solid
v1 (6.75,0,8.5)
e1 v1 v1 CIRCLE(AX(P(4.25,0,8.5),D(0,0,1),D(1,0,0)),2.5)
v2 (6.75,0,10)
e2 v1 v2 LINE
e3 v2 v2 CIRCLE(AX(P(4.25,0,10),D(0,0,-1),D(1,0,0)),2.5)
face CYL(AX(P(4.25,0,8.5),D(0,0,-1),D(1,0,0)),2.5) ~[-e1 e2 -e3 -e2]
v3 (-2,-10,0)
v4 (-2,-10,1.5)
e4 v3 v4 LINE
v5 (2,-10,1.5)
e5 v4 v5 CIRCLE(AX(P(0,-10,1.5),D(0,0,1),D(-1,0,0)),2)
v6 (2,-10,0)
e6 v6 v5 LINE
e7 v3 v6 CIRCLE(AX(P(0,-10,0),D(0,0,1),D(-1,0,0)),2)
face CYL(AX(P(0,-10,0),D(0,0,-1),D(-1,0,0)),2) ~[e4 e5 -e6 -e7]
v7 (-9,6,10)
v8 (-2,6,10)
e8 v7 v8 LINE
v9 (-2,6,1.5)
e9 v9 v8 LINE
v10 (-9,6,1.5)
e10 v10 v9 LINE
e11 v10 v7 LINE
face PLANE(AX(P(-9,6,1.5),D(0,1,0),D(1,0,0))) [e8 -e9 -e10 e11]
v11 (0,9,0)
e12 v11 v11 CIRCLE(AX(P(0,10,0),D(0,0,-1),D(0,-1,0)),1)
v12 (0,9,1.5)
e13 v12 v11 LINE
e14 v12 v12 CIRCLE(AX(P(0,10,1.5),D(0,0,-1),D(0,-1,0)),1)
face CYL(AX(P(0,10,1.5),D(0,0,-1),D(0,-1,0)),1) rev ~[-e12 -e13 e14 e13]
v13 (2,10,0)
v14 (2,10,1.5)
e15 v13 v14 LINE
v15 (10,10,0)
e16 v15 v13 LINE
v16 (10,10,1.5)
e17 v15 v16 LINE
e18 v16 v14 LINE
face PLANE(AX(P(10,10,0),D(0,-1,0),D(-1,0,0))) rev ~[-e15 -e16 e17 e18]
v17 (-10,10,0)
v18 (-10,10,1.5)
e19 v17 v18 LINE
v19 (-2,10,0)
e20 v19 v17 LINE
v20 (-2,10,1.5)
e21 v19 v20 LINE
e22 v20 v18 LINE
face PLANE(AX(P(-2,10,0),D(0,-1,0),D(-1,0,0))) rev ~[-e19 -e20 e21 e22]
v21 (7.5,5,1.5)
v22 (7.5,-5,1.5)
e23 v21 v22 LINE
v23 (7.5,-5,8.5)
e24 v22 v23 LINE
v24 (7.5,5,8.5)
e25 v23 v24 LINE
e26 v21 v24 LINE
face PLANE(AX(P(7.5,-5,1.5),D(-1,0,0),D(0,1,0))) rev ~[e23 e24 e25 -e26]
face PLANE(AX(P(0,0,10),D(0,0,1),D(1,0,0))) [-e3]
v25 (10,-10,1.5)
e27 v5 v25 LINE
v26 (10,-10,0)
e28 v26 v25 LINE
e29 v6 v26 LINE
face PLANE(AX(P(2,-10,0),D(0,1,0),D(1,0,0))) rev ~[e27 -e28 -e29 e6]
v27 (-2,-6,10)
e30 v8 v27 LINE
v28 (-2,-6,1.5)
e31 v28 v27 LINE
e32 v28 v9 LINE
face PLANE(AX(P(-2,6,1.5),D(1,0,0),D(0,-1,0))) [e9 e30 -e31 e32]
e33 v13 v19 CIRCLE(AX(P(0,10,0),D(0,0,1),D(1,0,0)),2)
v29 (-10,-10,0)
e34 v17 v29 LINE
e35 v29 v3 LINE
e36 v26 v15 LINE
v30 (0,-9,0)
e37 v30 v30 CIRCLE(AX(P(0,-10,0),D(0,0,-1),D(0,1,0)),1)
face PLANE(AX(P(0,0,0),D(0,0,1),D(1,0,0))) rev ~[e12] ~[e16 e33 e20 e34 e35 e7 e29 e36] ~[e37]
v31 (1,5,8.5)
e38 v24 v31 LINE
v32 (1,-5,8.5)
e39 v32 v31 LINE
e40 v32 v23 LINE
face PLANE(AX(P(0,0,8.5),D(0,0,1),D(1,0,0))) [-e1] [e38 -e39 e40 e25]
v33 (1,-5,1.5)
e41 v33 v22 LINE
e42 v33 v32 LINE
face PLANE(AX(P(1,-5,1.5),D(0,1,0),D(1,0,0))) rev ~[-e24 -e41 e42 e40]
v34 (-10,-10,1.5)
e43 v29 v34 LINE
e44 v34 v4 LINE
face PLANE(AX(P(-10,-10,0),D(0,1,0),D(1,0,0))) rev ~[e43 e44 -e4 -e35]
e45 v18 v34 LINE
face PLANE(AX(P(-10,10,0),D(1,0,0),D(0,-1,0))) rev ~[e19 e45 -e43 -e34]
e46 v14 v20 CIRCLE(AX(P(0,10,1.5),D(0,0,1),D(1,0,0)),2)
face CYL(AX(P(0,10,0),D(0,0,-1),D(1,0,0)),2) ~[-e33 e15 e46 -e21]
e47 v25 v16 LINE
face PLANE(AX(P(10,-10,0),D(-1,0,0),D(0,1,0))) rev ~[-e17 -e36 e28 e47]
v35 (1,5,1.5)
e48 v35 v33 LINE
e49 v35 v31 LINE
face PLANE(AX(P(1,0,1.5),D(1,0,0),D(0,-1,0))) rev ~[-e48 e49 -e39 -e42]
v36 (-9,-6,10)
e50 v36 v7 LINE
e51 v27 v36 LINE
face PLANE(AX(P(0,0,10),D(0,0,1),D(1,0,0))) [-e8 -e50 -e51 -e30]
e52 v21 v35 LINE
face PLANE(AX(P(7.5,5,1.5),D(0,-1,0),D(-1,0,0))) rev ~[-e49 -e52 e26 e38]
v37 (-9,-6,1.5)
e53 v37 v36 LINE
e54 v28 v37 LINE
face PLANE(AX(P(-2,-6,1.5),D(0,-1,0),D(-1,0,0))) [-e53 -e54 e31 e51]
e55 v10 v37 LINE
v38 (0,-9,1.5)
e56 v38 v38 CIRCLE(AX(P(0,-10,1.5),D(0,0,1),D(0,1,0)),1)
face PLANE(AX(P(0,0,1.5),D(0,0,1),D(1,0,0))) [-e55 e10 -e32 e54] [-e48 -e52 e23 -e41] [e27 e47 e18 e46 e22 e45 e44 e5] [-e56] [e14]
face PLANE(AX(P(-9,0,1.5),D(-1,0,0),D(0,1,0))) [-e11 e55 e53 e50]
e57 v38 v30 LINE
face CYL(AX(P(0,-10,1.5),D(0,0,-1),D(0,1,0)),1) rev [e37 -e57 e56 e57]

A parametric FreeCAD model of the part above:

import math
import FreeCAD as App
import Part
import Sketcher


def add_polygon(sketch, points):
    """Adds a closed chain of lines whose ends are joined by coincident constraints."""
    first, n = sketch.GeometryCount, len(points)
    for a, b in zip(points, points[1:] + points[:1]):
        sketch.addGeometry(Part.LineSegment(App.Vector(*a, 0), App.Vector(*b, 0)), False)
    for i in range(n):
        sketch.addConstraint(Sketcher.Constraint("Coincident", first + i, 2, first + (i + 1) % n, 1))

doc = App.newDocument("Part")
body = doc.addObject("PartDesign::Body", "Body")

sketch1 = body.newObject("Sketcher::SketchObject", "Sketch")
sketch1.AttachmentSupport = (doc.getObject("XY_Plane"), [""])
sketch1.MapMode = "FlatFace"
sketch1.addGeometry(Part.LineSegment(App.Vector(-10, 10, 0), App.Vector(-10, -10, 0)), False)
sketch1.addGeometry(Part.LineSegment(App.Vector(-10, -10, 0), App.Vector(-2, -10, 0)), False)
sketch1.addGeometry(Part.ArcOfCircle(Part.Circle(App.Vector(0, -10, 0), App.Vector(0, 0, 1), 2), math.radians(180), math.radians(360)), False)
sketch1.addGeometry(Part.LineSegment(App.Vector(2, -10, 0), App.Vector(10, -10, 0)), False)
sketch1.addGeometry(Part.LineSegment(App.Vector(10, -10, 0), App.Vector(10, 10, 0)), False)
sketch1.addGeometry(Part.LineSegment(App.Vector(10, 10, 0), App.Vector(2, 10, 0)), False)
sketch1.addGeometry(Part.ArcOfCircle(Part.Circle(App.Vector(0, 10, 0), App.Vector(0, 0, 1), 2), math.radians(0), math.radians(180)), False)
sketch1.addGeometry(Part.LineSegment(App.Vector(-2, 10, 0), App.Vector(-10, 10, 0)), False)
sketch1.addConstraint(Sketcher.Constraint("Coincident", 0, 2, 1, 1))
sketch1.addConstraint(Sketcher.Constraint("Coincident", 1, 2, 2, 1))
sketch1.addConstraint(Sketcher.Constraint("Coincident", 2, 2, 3, 1))
sketch1.addConstraint(Sketcher.Constraint("Coincident", 3, 2, 4, 1))
sketch1.addConstraint(Sketcher.Constraint("Coincident", 4, 2, 5, 1))
sketch1.addConstraint(Sketcher.Constraint("Coincident", 5, 2, 6, 1))
sketch1.addConstraint(Sketcher.Constraint("Coincident", 6, 2, 7, 1))
sketch1.addConstraint(Sketcher.Constraint("Coincident", 7, 2, 0, 1))
sketch1.addConstraint(Sketcher.Constraint("Vertical", 0))
sketch1.addConstraint(Sketcher.Constraint("Horizontal", 1))
sketch1.addConstraint(Sketcher.Constraint("Horizontal", 3))
sketch1.addConstraint(Sketcher.Constraint("Vertical", 4))
sketch1.addConstraint(Sketcher.Constraint("Horizontal", 5))
sketch1.addConstraint(Sketcher.Constraint("Horizontal", 7))
sketch1.addConstraint(Sketcher.Constraint("Equal", 2, 6))
sketch1.addConstraint(Sketcher.Constraint("Symmetric", 2, 3, 6, 3, -1, 1))
sketch1.addConstraint(Sketcher.Constraint("Symmetric", 0, 2, 4, 2, -1, 1))
sketch1.addConstraint(Sketcher.Constraint("Symmetric", 1, 2, 2, 2, -2))
sketch1.addConstraint(Sketcher.Constraint("Horizontal", 2, 3, 0, 2))
sketch1.addConstraint(Sketcher.Constraint("Horizontal", 5, 2, 6, 2))
sketch1.addConstraint(Sketcher.Constraint("Radius", 2, 2.0))
sketch1.addConstraint(Sketcher.Constraint("DistanceY", 0, 2, 0, 1, 20.0))
sketch1.addConstraint(Sketcher.Constraint("DistanceX", 0, 2, 3, 2, 20.0))
pad1 = body.newObject("PartDesign::Pad", "Pad")
pad1.Profile = sketch1
pad1.Length = 1.5

sketch2 = body.newObject("Sketcher::SketchObject", "Sketch001")
sketch2.AttachmentSupport = (doc.getObject("XY_Plane"), [""])
sketch2.MapMode = "FlatFace"
sketch2.AttachmentOffset = App.Placement(App.Vector(0, 0, 1.5), App.Rotation())
sketch2.addGeometry(Part.Circle(App.Vector(0, 10, 0), App.Vector(0, 0, 1), 1), False)
sketch2.addConstraint(Sketcher.Constraint("PointOnObject", 0, 3, -2))
sketch2.addConstraint(Sketcher.Constraint("Diameter", 0, 2.0))
sketch2.addConstraint(Sketcher.Constraint("DistanceY", -1, 1, 0, 3, 10.0))
doc.recompute()
hole = body.newObject("PartDesign::Hole", "Hole")
hole.Profile = sketch2
hole.ThreadType = "None"
hole.Diameter = 2
hole.DepthType = "ThroughAll"
doc.recompute()

mirrored = body.newObject("PartDesign::Mirrored", "Mirrored")
mirrored.Originals = [hole]
mirrored.MirrorPlane = (doc.getObject("XZ_Plane"), [""])
body.Tip = mirrored

sketch3 = body.newObject("Sketcher::SketchObject", "Sketch002")
sketch3.AttachmentSupport = (doc.getObject("XY_Plane"), [""])
sketch3.MapMode = "FlatFace"
sketch3.AttachmentOffset = App.Placement(App.Vector(0, 0, 1.5), App.Rotation())
add_polygon(sketch3, [(1, -5), (8, -5), (8, 5), (1, 5)])
sketch3.addConstraint(Sketcher.Constraint("Horizontal", 0))
sketch3.addConstraint(Sketcher.Constraint("Vertical", 1))
sketch3.addConstraint(Sketcher.Constraint("Horizontal", 2))
sketch3.addConstraint(Sketcher.Constraint("Vertical", 3))
sketch3.addConstraint(Sketcher.Constraint("DistanceY", 1, 1, 1, 2, 10.0))
sketch3.addConstraint(Sketcher.Constraint("DistanceX", 0, 1, 0, 2, 6.5))
sketch3.addConstraint(Sketcher.Constraint("DistanceY", 0, 2, -1, 1, 5.0))
sketch3.addConstraint(Sketcher.Constraint("DistanceX", -1, 1, 2, 2, 1.0))
pad2 = body.newObject("PartDesign::Pad", "Pad001")
pad2.Profile = sketch3
pad2.Length = 7

sketch4 = body.newObject("Sketcher::SketchObject", "Sketch003")
sketch4.AttachmentSupport = (doc.getObject("XY_Plane"), [""])
sketch4.MapMode = "FlatFace"
sketch4.AttachmentOffset = App.Placement(App.Vector(0, 0, 8.5), App.Rotation())
sketch4.addGeometry(Part.Circle(App.Vector(4.2, 0, 0), App.Vector(0, 0, 1), 2.5), False)
sketch4.addConstraint(Sketcher.Constraint("PointOnObject", 0, 3, -1))
sketch4.addConstraint(Sketcher.Constraint("Diameter", 0, 5.0))
sketch4.addConstraint(Sketcher.Constraint("DistanceX", -1, 1, 0, 3, 4.25))
pad3 = body.newObject("PartDesign::Pad", "Pad002")
pad3.Profile = sketch4
pad3.Length = 1.5

sketch5 = body.newObject("Sketcher::SketchObject", "Sketch004")
sketch5.AttachmentSupport = (doc.getObject("XY_Plane"), [""])
sketch5.MapMode = "FlatFace"
sketch5.AttachmentOffset = App.Placement(App.Vector(0, 0, 1.5), App.Rotation())
add_polygon(sketch5, [(-2, 6), (-9, 6), (-9, -6), (-2, -6)])
sketch5.addConstraint(Sketcher.Constraint("Horizontal", 0))
sketch5.addConstraint(Sketcher.Constraint("Vertical", 1))
sketch5.addConstraint(Sketcher.Constraint("Horizontal", 2))
sketch5.addConstraint(Sketcher.Constraint("Vertical", 3))
sketch5.addConstraint(Sketcher.Constraint("DistanceX", 0, 2, 0, 1, 7.0))
sketch5.addConstraint(Sketcher.Constraint("DistanceY", 1, 2, 1, 1, 12.0))
sketch5.addConstraint(Sketcher.Constraint("DistanceX", 0, 2, -1, 1, 9.0))
sketch5.addConstraint(Sketcher.Constraint("DistanceY", -1, 1, 0, 2, 6.0))
pad4 = body.newObject("PartDesign::Pad", "Pad003")
pad4.Profile = sketch5
pad4.Length = 8.5

doc.recompute()
